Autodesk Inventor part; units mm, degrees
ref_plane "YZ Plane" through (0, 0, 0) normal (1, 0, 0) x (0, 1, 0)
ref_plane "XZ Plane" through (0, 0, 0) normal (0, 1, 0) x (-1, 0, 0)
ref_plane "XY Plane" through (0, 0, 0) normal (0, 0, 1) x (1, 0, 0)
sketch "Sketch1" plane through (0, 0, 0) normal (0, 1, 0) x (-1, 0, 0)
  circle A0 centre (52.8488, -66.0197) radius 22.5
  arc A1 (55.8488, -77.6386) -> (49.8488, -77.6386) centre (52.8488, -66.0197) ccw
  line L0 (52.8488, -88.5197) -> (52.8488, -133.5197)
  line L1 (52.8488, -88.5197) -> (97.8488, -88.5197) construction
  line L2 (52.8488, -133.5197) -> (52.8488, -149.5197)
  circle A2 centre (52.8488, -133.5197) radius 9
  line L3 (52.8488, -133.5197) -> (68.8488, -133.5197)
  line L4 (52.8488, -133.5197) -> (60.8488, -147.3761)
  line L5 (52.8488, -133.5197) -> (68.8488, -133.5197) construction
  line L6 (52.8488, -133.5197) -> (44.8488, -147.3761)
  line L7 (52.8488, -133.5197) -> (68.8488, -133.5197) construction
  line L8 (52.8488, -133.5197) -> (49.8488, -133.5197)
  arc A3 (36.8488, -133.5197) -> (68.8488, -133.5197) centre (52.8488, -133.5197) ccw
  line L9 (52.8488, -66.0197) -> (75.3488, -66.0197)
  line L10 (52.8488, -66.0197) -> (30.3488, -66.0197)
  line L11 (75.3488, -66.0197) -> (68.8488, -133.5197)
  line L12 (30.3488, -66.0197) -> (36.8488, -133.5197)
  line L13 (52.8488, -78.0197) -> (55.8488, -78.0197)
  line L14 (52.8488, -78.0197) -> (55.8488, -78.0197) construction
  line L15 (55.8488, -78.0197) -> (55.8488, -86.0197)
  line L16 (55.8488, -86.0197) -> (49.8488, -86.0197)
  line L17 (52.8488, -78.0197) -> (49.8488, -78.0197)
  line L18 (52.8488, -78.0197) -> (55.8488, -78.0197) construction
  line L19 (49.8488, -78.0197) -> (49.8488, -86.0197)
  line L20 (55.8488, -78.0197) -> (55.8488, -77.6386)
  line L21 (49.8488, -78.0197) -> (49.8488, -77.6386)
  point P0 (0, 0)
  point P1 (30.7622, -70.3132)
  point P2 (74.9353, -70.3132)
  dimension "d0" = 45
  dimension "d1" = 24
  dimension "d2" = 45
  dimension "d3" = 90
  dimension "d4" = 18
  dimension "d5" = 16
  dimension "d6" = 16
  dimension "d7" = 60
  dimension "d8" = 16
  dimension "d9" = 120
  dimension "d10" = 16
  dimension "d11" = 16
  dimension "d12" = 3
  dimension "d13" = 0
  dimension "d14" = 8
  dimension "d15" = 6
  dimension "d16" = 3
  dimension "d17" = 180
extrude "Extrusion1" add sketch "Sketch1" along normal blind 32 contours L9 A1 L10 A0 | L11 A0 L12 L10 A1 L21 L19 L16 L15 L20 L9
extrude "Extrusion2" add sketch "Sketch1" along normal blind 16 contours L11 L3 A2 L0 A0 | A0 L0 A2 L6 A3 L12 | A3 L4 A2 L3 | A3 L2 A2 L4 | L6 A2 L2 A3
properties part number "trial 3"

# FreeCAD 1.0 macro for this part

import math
import FreeCAD as App
import Part
import Sketcher
Q = App.Units.Quantity

doc = App.newDocument("Part")
body = doc.addObject("PartDesign::Body", "Body")

# Sketch on XZ plane
sketch1 = body.newObject("Sketcher::SketchObject", "Sketch")
sketch1.AttachmentSupport = (doc.getObject("XZ_Plane"), [""])
sketch1.MapMode = "FlatFace"
sketch1.addGeometry([
    Part.ArcOfCircle(Part.Circle(App.Vector(-52.8, -66, 0), App.Vector(0, 0, 1), 22.5), math.radians(0), math.radians(180)),  # 0
    Part.LineSegment(App.Vector(-30.3, -66, 0), App.Vector(-30.8, -70.3, 0)),  # 1
    Part.ArcOfCircle(Part.Circle(App.Vector(-52.8, -66, 0), App.Vector(0, 0, 1), 22.5), math.radians(-169), math.radians(-11)),  # 2
    Part.LineSegment(App.Vector(-74.9, -70.3, 0), App.Vector(-75.3, -66, 0)),  # 3
    Part.LineSegment(App.Vector(-55.8, -77.6, 0), App.Vector(-55.8, -86, 0)),  # 4
    Part.LineSegment(App.Vector(-55.8, -86, 0), App.Vector(-49.8, -86, 0)),  # 5
    Part.LineSegment(App.Vector(-49.8, -86, 0), App.Vector(-49.8, -77.6, 0)),  # 6
    Part.ArcOfCircle(Part.Circle(App.Vector(-52.8, -66, 0), App.Vector(0, 0, 1), 12), math.radians(-76), math.radians(256)),  # 7
], False)
sketch1.addConstraint([
    Sketcher.Constraint("Coincident", 0, 1, 1, 1),
    Sketcher.Constraint("Coincident", 1, 2, 2, 2),
    Sketcher.Constraint("Coincident", 2, 1, 3, 1),
    Sketcher.Constraint("Coincident", 3, 2, 0, 2),
    Sketcher.Constraint("Coincident", 4, 2, 5, 1),
    Sketcher.Constraint("Coincident", 5, 2, 6, 1),
    Sketcher.Constraint("Coincident", 6, 2, 7, 1),
    Sketcher.Constraint("Coincident", 7, 2, 4, 1),
    Sketcher.Constraint("Vertical", 4),
    Sketcher.Constraint("Horizontal", 5),
    Sketcher.Constraint("Vertical", 6),
    Sketcher.Constraint("Coincident", 2, 3, 0, 3),
    Sketcher.Constraint("Coincident", 7, 3, 0, 3),
    Sketcher.Constraint("Equal", 0, 2),
    Sketcher.Constraint("Horizontal", 7, 3, 0, 1),
    Sketcher.Constraint("Horizontal", 1, 2, 2, 1),
    Sketcher.Constraint("Horizontal", 0, 1, 3, 2),
    Sketcher.Constraint("Horizontal", 6, 2, 7, 2),
    Sketcher.Constraint("Radius", 7, Q("12 mm")),
    Sketcher.Constraint("Radius", 0, Q("22.5 mm")),
    Sketcher.Constraint("DistanceX", 5, 1, 5, 2, Q("6 mm")),
    Sketcher.Constraint("Angle", 1, Q("-95.5004 deg")),
    Sketcher.Constraint("DistanceY", 4, 2, 0, 3, Q("20 mm")),
    Sketcher.Constraint("DistanceX", 0, 3, -1, 1, Q("52.8488 mm")),
    Sketcher.Constraint("DistanceY", 0, 3, -1, 1, Q("66.0197 mm")),
])
pad1 = body.newObject("PartDesign::Pad", "Pad")
pad1.Profile = sketch1
pad1.Length = 32
pad1.Reversed = True

# Sketch on XZ plane
sketch2 = body.newObject("Sketcher::SketchObject", "Sketch001")
sketch2.AttachmentSupport = (doc.getObject("XZ_Plane"), [""])
sketch2.MapMode = "FlatFace"
sketch2.addGeometry([
    Part.LineSegment(App.Vector(-69, -134, 0), App.Vector(-75, -70, 0)),  # 0
    Part.ArcOfCircle(Part.Circle(App.Vector(-53, -66, 0), App.Vector(0, 0, 1), 22), math.radians(-169), math.radians(-11)),  # 1
    Part.LineSegment(App.Vector(-31, -70, 0), App.Vector(-37, -134, 0)),  # 2
    Part.ArcOfCircle(Part.Circle(App.Vector(-53, -134, 0), App.Vector(0, 0, 1), 16), math.radians(180), math.radians(360)),  # 3
    Part.Circle(App.Vector(-53, -134, 0), App.Vector(0, 0, 1), 9),  # 4
], False)
sketch2.addConstraint([
    Sketcher.Constraint("Coincident", 0, 2, 1, 1),
    Sketcher.Constraint("Coincident", 1, 2, 2, 1),
    Sketcher.Constraint("Coincident", 2, 2, 3, 2),
    Sketcher.Constraint("Coincident", 3, 1, 0, 1),
    Sketcher.Constraint("Coincident", 4, 3, 3, 3),
    Sketcher.Constraint("Horizontal", 0, 2, 1, 2),
    Sketcher.Constraint("Horizontal", 4, 3, 2, 2),
    Sketcher.Constraint("Horizontal", 2, 2, 3, 1),
    Sketcher.Constraint("Vertical", 1, 3, 3, 3),
    Sketcher.Constraint("Diameter", 4, Q("18 mm")),
    Sketcher.Constraint("Radius", 3, Q("16 mm")),
    Sketcher.Constraint("Radius", 1, Q("22.5 mm")),
    Sketcher.Constraint("Angle", 0, Q("95.5004 deg")),
    Sketcher.Constraint("DistanceY", 3, 3, 1, 3, Q("67.5 mm")),
    Sketcher.Constraint("DistanceX", 1, 3, -1, 1, Q("52.8488 mm")),
    Sketcher.Constraint("DistanceY", 1, 3, -1, 1, Q("66.0197 mm")),
])
pad2 = body.newObject("PartDesign::Pad", "Pad001")
pad2.Profile = sketch2
pad2.Length = 16
pad2.Reversed = True

doc.recompute()
